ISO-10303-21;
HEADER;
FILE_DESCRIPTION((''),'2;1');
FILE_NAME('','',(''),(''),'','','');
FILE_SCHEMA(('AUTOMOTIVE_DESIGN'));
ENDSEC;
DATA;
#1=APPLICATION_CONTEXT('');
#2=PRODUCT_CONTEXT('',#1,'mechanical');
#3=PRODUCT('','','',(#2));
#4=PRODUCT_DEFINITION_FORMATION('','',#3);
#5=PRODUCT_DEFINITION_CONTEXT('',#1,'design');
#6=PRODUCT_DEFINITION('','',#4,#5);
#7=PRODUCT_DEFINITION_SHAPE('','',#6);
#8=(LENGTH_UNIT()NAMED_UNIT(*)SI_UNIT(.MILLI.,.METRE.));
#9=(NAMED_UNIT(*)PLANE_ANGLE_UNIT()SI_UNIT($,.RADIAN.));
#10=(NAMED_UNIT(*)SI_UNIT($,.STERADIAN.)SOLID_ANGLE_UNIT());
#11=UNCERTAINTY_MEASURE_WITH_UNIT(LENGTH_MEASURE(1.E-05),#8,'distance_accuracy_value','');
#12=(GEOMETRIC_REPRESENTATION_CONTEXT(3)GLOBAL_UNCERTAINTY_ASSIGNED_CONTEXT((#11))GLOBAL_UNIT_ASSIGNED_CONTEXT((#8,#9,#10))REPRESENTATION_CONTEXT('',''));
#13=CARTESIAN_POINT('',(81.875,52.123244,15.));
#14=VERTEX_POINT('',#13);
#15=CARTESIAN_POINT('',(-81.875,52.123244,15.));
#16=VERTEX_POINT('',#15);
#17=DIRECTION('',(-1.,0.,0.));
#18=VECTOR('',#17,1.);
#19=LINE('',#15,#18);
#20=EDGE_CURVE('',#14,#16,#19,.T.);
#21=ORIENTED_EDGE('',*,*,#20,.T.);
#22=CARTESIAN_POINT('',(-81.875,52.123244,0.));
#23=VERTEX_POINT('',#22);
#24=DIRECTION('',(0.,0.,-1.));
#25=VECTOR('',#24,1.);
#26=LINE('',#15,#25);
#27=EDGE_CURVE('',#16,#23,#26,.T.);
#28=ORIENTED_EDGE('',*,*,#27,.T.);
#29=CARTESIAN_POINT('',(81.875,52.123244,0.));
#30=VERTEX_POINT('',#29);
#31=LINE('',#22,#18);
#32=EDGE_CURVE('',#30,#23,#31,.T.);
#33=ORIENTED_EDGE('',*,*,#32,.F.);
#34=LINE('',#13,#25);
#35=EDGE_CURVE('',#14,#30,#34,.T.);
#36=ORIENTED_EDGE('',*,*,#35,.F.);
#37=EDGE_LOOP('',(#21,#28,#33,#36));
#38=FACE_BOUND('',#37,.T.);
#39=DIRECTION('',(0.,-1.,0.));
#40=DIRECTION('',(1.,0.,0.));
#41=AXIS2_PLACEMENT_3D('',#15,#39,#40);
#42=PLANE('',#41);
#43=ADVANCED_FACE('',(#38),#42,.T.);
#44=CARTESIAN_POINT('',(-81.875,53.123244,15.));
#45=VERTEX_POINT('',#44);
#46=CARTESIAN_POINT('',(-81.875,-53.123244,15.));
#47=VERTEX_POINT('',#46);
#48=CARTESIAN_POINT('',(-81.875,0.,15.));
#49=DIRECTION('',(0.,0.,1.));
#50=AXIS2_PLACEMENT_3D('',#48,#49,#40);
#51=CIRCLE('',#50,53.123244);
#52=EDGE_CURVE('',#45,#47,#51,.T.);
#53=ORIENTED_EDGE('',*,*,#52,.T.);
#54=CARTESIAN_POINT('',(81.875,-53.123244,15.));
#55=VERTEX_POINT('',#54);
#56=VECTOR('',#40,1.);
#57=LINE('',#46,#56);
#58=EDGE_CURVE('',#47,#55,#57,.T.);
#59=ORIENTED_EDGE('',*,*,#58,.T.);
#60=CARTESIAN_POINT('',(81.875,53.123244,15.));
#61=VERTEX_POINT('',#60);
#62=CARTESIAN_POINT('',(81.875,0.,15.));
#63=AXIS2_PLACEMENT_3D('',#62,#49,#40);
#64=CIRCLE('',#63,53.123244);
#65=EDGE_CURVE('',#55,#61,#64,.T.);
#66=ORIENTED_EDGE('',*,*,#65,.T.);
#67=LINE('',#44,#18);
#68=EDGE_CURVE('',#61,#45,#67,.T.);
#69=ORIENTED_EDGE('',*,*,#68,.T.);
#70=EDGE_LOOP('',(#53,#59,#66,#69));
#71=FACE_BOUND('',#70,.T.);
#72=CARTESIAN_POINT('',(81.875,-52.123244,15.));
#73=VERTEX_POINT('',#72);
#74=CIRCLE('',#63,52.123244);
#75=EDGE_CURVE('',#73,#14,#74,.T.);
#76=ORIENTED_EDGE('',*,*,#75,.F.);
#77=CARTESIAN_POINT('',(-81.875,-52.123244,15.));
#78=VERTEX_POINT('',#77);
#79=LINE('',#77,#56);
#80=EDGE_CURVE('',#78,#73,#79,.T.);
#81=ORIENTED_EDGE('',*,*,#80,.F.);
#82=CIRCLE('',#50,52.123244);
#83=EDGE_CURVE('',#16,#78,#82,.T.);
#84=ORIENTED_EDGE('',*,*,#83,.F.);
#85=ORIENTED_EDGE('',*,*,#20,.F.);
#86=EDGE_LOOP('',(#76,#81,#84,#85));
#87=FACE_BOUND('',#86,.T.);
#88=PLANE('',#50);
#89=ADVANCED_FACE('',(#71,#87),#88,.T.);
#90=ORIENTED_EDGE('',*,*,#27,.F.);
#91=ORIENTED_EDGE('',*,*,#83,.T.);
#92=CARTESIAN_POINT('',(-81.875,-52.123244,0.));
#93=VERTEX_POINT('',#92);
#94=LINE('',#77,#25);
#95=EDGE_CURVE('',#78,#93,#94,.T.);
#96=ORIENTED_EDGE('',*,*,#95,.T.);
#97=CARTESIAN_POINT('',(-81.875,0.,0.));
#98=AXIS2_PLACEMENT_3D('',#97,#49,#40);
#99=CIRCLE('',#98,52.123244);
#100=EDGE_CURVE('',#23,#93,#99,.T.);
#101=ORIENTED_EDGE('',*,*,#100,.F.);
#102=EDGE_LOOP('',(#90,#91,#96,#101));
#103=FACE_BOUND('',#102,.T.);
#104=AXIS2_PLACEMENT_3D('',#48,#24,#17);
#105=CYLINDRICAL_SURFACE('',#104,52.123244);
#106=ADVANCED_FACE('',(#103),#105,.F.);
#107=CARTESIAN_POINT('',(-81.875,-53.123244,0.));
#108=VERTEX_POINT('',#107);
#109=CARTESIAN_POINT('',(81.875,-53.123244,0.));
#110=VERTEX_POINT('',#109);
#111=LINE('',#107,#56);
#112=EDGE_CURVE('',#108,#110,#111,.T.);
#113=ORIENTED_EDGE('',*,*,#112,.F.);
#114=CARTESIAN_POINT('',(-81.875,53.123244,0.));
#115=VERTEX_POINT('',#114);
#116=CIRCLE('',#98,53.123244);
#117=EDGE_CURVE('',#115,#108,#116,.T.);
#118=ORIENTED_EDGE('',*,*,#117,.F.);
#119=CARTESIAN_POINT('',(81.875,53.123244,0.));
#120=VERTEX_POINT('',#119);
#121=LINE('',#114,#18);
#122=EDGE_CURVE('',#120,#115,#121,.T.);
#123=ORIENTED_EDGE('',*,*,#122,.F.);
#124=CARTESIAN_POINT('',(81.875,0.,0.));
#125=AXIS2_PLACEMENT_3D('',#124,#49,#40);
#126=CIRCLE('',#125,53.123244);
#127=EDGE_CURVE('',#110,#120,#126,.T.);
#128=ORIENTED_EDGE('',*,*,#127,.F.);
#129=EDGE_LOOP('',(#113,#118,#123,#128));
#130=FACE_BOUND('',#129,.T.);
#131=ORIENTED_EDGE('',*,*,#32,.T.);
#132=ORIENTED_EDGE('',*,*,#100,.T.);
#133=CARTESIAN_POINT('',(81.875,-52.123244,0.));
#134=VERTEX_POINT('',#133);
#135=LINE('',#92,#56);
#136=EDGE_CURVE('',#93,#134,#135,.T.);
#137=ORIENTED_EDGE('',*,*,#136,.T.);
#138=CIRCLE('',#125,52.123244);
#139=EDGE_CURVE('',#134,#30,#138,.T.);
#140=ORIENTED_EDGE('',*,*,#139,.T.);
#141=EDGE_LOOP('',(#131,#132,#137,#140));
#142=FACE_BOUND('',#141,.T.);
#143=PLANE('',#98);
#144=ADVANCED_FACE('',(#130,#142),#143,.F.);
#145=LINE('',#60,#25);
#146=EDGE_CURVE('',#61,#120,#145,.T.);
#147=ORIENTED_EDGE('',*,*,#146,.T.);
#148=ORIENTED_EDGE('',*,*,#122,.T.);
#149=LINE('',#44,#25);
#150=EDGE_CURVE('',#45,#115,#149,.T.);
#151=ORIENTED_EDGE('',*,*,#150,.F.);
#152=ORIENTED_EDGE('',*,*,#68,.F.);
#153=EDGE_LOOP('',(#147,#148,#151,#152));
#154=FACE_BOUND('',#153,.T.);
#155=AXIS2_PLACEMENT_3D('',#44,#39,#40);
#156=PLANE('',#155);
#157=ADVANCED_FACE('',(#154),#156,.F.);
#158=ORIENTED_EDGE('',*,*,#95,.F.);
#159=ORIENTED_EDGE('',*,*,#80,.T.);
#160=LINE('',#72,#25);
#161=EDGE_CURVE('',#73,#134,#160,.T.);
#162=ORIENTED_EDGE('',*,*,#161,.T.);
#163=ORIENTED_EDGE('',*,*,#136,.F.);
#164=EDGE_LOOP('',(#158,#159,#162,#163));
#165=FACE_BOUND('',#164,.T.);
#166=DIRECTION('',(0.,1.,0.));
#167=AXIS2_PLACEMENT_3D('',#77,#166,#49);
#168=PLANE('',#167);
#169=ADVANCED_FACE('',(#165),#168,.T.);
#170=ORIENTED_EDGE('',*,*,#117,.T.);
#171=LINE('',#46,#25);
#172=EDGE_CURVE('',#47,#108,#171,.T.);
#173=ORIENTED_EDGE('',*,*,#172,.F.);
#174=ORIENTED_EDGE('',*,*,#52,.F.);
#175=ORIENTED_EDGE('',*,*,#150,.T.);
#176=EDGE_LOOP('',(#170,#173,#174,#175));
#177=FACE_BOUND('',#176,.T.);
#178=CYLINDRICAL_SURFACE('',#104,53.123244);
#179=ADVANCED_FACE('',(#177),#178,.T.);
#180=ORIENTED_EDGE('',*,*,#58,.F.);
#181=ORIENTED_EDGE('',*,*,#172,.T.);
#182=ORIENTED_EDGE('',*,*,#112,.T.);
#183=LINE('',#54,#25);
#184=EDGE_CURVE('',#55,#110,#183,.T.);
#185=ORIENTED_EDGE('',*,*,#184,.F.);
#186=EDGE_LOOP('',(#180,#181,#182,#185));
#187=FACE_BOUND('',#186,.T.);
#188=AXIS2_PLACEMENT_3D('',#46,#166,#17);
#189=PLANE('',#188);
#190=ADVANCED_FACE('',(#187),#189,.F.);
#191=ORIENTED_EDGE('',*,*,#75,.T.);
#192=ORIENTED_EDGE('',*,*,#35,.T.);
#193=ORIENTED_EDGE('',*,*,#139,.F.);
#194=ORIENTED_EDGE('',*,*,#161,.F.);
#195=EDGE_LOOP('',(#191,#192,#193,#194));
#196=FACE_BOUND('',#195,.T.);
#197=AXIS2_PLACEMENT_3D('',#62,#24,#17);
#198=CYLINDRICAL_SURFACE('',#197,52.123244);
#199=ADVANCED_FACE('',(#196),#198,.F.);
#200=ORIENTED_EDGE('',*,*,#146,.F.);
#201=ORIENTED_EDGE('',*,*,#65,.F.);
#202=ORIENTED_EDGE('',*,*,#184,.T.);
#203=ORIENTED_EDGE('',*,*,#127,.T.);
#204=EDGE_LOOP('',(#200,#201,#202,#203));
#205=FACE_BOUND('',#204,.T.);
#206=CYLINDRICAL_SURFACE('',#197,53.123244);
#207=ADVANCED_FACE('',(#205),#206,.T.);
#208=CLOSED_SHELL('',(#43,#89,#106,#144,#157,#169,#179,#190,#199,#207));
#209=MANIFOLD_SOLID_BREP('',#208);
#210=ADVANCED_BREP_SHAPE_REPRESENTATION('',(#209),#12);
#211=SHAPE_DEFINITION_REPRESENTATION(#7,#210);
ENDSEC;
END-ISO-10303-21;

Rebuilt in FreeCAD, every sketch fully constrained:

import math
import FreeCAD as App
import Part
import Sketcher
from FreeCAD import Vector
Q = App.Units.Quantity

doc = App.newDocument("Part")
body = doc.addObject("PartDesign::Body", "Body")

sketch1 = body.newObject("Sketcher::SketchObject", "Sketch")
sketch1.AttachmentSupport = (doc.getObject("XY_Plane"), [""])
sketch1.MapMode = "FlatFace"
sketch1.addGeometry([
    Part.LineSegment(Vector(81.875, 53.123244, 0), Vector(-81.875, 53.123244, 0)),
    Part.ArcOfCircle(Part.Circle(Vector(-81.875, 0, 0), Vector(0, 0, 1), 53.123244), math.radians(90), math.radians(270)),
    Part.LineSegment(Vector(-81.875, -53.123244, 0), Vector(81.875, -53.123244, 0)),
    Part.ArcOfCircle(Part.Circle(Vector(81.875, 0, 0), Vector(0, 0, 1), 53.123244), math.radians(-90), math.radians(90)),
    Part.LineSegment(Vector(-81.875, 52.123244, 0), Vector(81.875, 52.123244, 0)),
    Part.ArcOfCircle(Part.Circle(Vector(81.875, 0, 0), Vector(0, 0, 1), 52.123244), math.radians(-90), math.radians(90)),
    Part.LineSegment(Vector(81.875, -52.123244, 0), Vector(-81.875, -52.123244, 0)),
    Part.ArcOfCircle(Part.Circle(Vector(-81.875, 0, 0), Vector(0, 0, 1), 52.123244), math.radians(90), math.radians(270)),
], False)
sketch1.addConstraint([
    Sketcher.Constraint("Tangent", 0, 2, 1, 1),
    Sketcher.Constraint("Tangent", 1, 2, 2, 1),
    Sketcher.Constraint("Tangent", 2, 2, 3, 1),
    Sketcher.Constraint("Tangent", 3, 2, 0, 1),
    Sketcher.Constraint("Tangent", 4, 2, 5, 2),
    Sketcher.Constraint("Tangent", 5, 1, 6, 1),
    Sketcher.Constraint("Tangent", 6, 2, 7, 2),
    Sketcher.Constraint("Tangent", 7, 1, 4, 1),
    Sketcher.Constraint("Horizontal", 0),
    Sketcher.Constraint("Horizontal", 2),
    Sketcher.Constraint("Horizontal", 4),
    Sketcher.Constraint("Horizontal", 6),
    Sketcher.Constraint("Coincident", 5, 3, 3, 3),
    Sketcher.Constraint("Symmetric", 1, 3, 3, 3, -1, 1),
    Sketcher.Constraint("Vertical", 7, 3, 0, 2),
    Sketcher.Constraint("DistanceY", 4, 2, 3, 2, Q("1 mm")),
    Sketcher.Constraint("DistanceX", 0, 2, 0, 1, Q("163.75 mm")),
    Sketcher.Constraint("Radius", 1, Q("53.123244 mm")),
])
pad1 = body.newObject("PartDesign::Pad", "Pad")
pad1.Profile = sketch1
pad1.Length = 15

doc.recompute()
